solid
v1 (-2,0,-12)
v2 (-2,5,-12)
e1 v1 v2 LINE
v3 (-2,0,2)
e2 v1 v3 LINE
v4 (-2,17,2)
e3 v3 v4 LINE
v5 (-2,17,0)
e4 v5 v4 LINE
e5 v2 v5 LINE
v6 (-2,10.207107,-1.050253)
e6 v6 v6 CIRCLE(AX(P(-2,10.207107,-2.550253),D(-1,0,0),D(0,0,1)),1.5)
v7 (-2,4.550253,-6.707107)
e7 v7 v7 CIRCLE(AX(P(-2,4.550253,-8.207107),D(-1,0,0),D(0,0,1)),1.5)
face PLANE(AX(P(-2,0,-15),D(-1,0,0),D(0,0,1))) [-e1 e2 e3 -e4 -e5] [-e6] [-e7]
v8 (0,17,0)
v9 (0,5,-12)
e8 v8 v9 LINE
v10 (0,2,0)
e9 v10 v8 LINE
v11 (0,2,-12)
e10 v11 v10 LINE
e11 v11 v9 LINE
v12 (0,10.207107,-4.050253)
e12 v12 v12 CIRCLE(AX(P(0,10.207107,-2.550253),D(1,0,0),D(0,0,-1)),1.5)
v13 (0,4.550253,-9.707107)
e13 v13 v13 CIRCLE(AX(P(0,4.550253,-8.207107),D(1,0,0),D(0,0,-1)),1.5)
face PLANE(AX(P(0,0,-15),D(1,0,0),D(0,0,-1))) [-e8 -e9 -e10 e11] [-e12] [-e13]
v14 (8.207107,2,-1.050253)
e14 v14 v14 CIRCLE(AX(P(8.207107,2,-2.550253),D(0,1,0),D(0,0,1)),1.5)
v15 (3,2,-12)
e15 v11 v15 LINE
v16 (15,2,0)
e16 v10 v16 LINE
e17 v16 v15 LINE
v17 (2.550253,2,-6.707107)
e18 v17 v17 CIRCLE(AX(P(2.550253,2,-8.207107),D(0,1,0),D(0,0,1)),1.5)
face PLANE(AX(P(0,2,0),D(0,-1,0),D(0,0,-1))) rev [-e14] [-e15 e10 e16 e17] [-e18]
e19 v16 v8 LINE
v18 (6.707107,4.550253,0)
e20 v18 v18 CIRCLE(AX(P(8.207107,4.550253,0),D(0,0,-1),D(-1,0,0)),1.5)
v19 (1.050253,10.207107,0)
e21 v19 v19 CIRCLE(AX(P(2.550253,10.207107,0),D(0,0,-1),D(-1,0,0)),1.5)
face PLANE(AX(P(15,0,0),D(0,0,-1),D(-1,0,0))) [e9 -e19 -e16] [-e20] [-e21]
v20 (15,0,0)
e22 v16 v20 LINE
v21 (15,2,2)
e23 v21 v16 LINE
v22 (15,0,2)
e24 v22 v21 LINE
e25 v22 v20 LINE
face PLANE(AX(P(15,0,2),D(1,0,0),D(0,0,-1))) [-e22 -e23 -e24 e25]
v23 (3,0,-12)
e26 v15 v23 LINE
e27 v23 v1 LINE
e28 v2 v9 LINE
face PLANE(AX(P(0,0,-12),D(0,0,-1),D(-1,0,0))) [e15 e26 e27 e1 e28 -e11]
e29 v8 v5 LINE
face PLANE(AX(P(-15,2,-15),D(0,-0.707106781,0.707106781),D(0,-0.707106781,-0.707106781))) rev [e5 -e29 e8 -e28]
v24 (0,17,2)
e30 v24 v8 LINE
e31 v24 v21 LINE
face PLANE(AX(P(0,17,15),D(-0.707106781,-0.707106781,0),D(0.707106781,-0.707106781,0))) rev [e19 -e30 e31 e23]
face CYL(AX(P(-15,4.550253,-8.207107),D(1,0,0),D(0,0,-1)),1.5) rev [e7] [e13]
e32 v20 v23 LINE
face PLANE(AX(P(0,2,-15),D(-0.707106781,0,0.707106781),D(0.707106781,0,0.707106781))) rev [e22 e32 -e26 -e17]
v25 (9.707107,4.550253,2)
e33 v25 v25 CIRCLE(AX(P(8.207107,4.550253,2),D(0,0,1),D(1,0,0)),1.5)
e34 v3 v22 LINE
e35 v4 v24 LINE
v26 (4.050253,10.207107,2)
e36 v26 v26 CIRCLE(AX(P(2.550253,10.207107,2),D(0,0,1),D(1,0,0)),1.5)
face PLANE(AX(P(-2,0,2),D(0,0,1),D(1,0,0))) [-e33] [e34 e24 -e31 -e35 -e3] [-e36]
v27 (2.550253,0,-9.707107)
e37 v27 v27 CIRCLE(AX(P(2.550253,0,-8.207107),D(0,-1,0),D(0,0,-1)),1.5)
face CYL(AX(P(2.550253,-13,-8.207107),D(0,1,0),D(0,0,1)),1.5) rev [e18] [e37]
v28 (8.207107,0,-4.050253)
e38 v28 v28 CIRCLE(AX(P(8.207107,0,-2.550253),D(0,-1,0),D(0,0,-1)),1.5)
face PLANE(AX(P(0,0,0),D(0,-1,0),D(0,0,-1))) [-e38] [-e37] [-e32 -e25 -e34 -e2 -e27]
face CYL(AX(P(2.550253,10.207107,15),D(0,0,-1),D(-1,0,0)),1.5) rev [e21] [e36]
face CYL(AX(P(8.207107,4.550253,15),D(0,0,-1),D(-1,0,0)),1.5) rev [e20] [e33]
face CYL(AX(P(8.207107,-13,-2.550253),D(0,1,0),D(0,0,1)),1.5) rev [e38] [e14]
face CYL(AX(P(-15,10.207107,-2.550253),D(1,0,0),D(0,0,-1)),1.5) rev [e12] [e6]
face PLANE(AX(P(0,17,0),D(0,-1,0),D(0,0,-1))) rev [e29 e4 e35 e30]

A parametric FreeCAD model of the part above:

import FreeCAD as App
import Part
import Sketcher

V = App.Vector


def add_polygon(sketch, points):
    """Adds a closed chain of lines whose ends are joined by coincident constraints."""
    first, n = sketch.GeometryCount, len(points)
    for a, b in zip(points, points[1:] + points[:1]):
        sketch.addGeometry(Part.LineSegment(App.Vector(*a, 0), App.Vector(*b, 0)), False)
    for i in range(n):
        sketch.addConstraint(Sketcher.Constraint("Coincident", first + i, 2, first + (i + 1) % n, 1))

doc = App.newDocument("Part")
body = doc.addObject("PartDesign::Body", "Body")

# Sketch on XZ plane
sketch1 = doc.addObject("Sketcher::SketchObject", "Sketch")
body.addObject(sketch1)
sketch1.AttachmentSupport = (doc.XZ_Plane, [""])
sketch1.MapMode = "FlatFace"
add_polygon(sketch1, [(15, 0), (0, -15), (0, 0)])  # lines 0-2
sketch1.addConstraint([
    Sketcher.Constraint("Vertical", 1),
    Sketcher.Constraint("Horizontal", 2),
    Sketcher.Constraint("Coincident", 1, 2, -1, 1),
    Sketcher.Constraint("Equal", 2, 1),
    Sketcher.Constraint("DistanceX", 2, 1, 2, 2, 15.0),
])
pad1 = doc.addObject("PartDesign::Pad", "Pad")
body.addObject(pad1)
pad1.Profile = sketch1
pad1.Length = 2
pad1.Reversed = True

# Sketch on XZ plane
sketch2 = doc.addObject("Sketcher::SketchObject", "Sketch001")
body.addObject(sketch2)
sketch2.AttachmentSupport = (doc.XZ_Plane, [""])
sketch2.MapMode = "FlatFace"
sketch2.AttachmentOffset = App.Placement(V(0, 0, -2), App.Rotation())
add_polygon(sketch2, [(-2, 2), (15, 2), (15, 0), (0, 0), (0, -15), (-2, -15)])  # lines 0-5
sketch2.addConstraint([
    Sketcher.Constraint("Horizontal", 0),
    Sketcher.Constraint("Vertical", 1),
    Sketcher.Constraint("Horizontal", 2),
    Sketcher.Constraint("Vertical", 3),
    Sketcher.Constraint("Horizontal", 4),
    Sketcher.Constraint("Vertical", 5),
    Sketcher.Constraint("Coincident", 2, 2, -1, 1),
    Sketcher.Constraint("Equal", 4, 1),
    Sketcher.Constraint("Equal", 2, 3),
    Sketcher.Constraint("DistanceX", 0, 1, 0, 2, 17.0),
    Sketcher.Constraint("DistanceX", 2, 2, 2, 1, 15.0),
])
pad2 = doc.addObject("PartDesign::Pad", "Pad001")
body.addObject(pad2)
pad2.Profile = sketch2
pad2.Type = "TwoLengths"
pad2.Length = 15
pad2.Length2 = 2
pad2.Reversed = True

# Sketch on YZ plane
sketch3 = doc.addObject("Sketcher::SketchObject", "Sketch002")
body.addObject(sketch3)
sketch3.AttachmentSupport = (doc.YZ_Plane, [""])
sketch3.MapMode = "FlatFace"
add_polygon(sketch3, [(17, 0), (2, -15), (17, -15)])  # lines 0-2
sketch3.addConstraint([
    Sketcher.Constraint("Horizontal", 1),
    Sketcher.Constraint("Vertical", 2),
    Sketcher.Constraint("PointOnObject", 2, 2, -1),
    Sketcher.Constraint("Equal", 1, 2),
    Sketcher.Constraint("DistanceX", 1, 1, 1, 2, 15.0),
    Sketcher.Constraint("DistanceX", -1, 1, 0, 2, 2.0),
])
pocket1 = doc.addObject("PartDesign::Pocket", "Pocket")
body.addObject(pocket1)
pocket1.Profile = sketch3
pocket1.Length = 15

# Sketch on XY plane
sketch4 = doc.addObject("Sketcher::SketchObject", "Sketch003")
body.addObject(sketch4)
sketch4.AttachmentSupport = (doc.XY_Plane, [""])
sketch4.MapMode = "FlatFace"
add_polygon(sketch4, [(15, 2), (0, 17), (15, 17)])  # lines 0-2
sketch4.addConstraint([
    Sketcher.Constraint("Horizontal", 1),
    Sketcher.Constraint("Vertical", 2),
    Sketcher.Constraint("PointOnObject", 0, 2, -2),
    Sketcher.Constraint("Equal", 1, 2),
    Sketcher.Constraint("DistanceX", 1, 1, 1, 2, 15.0),
    Sketcher.Constraint("DistanceY", -1, 1, 0, 2, 17.0),
])
pocket2 = doc.addObject("PartDesign::Pocket", "Pocket001")
body.addObject(pocket2)
pocket2.Profile = sketch4
pocket2.Length = 15
pocket2.Reversed = True

# Sketch on YZ plane
sketch5 = doc.addObject("Sketcher::SketchObject", "Sketch004")
body.addObject(sketch5)
sketch5.AttachmentSupport = (doc.YZ_Plane, [""])
sketch5.MapMode = "FlatFace"
sketch5.addGeometry([
    Part.Circle(V(10.207107, -2.550253, 0), V(0, 0, 1), 1.5),
    Part.Circle(V(4.550253, -8.207107, 0), V(0, 0, 1), 1.5),
], False)
sketch5.addConstraint([
    Sketcher.Constraint("Equal", 0, 1),
    Sketcher.Constraint("Diameter", 0, 3.0),
    Sketcher.Constraint("DistanceX", -1, 1, 0, 3, 10.207107),
    Sketcher.Constraint("DistanceY", 0, 3, -1, 1, 2.550253),
    Sketcher.Constraint("DistanceX", -1, 1, 1, 3, 4.550253),
    Sketcher.Constraint("DistanceY", 1, 3, -1, 1, 8.207107),
])
pocket3 = doc.addObject("PartDesign::Pocket", "Pocket002")
body.addObject(pocket3)
pocket3.Profile = sketch5
pocket3.Length = 15

# Sketch on XY plane
sketch6 = doc.addObject("Sketcher::SketchObject", "Sketch005")
body.addObject(sketch6)
sketch6.AttachmentSupport = (doc.XY_Plane, [""])
sketch6.MapMode = "FlatFace"
sketch6.addGeometry([
    Part.Circle(V(2.550253, 10.207107, 0), V(0, 0, 1), 1.5),
    Part.Circle(V(8.207107, 4.550253, 0), V(0, 0, 1), 1.5),
], False)
sketch6.addConstraint([
    Sketcher.Constraint("Equal", 0, 1),
    Sketcher.Constraint("Diameter", 0, 3.0),
    Sketcher.Constraint("DistanceX", -1, 1, 0, 3, 2.550253),
    Sketcher.Constraint("DistanceY", -1, 1, 0, 3, 10.207107),
    Sketcher.Constraint("DistanceX", -1, 1, 1, 3, 8.207107),
    Sketcher.Constraint("DistanceY", -1, 1, 1, 3, 4.550253),
])
pocket4 = doc.addObject("PartDesign::Pocket", "Pocket003")
body.addObject(pocket4)
pocket4.Profile = sketch6
pocket4.Length = 15
pocket4.Reversed = True

# Sketch on XZ plane
sketch7 = doc.addObject("Sketcher::SketchObject", "Sketch006")
body.addObject(sketch7)
sketch7.AttachmentSupport = (doc.XZ_Plane, [""])
sketch7.MapMode = "FlatFace"
sketch7.AttachmentOffset = App.Placement(V(0, 0, -2), App.Rotation())
sketch7.addGeometry([
    Part.Circle(V(2.550253, -8.207107, 0), V(0, 0, 1), 1.5),
    Part.Circle(V(8.207107, -2.550253, 0), V(0, 0, 1), 1.5),
], False)
sketch7.addConstraint([
    Sketcher.Constraint("Equal", 0, 1),
    Sketcher.Constraint("Diameter", 0, 3.0),
    Sketcher.Constraint("DistanceX", -1, 1, 0, 3, 2.550253),
    Sketcher.Constraint("DistanceY", 0, 3, -1, 1, 8.207107),
    Sketcher.Constraint("DistanceX", -1, 1, 1, 3, 8.207107),
    Sketcher.Constraint("DistanceY", 1, 3, -1, 1, 2.550253),
])
pocket5 = doc.addObject("PartDesign::Pocket", "Pocket004")
body.addObject(pocket5)
pocket5.Profile = sketch7
pocket5.Length = 15
pocket5.Reversed = True

# Sketch on XY plane
sketch8 = doc.addObject("Sketcher::SketchObject", "Sketch007")
body.addObject(sketch8)
sketch8.AttachmentSupport = (doc.XY_Plane, [""])
sketch8.MapMode = "FlatFace"
sketch8.AttachmentOffset = App.Placement(V(0, 0, -15), App.Rotation())
add_polygon(sketch8, [(15, 17), (15, 0), (-2, 0), (-2, 17)])  # lines 0-3
sketch8.addConstraint([
    Sketcher.Constraint("Vertical", 0),
    Sketcher.Constraint("Horizontal", 1),
    Sketcher.Constraint("Vertical", 2),
    Sketcher.Constraint("Horizontal", 3),
    Sketcher.Constraint("PointOnObject", 0, 2, -1),
    Sketcher.Constraint("Equal", 3, 0),
    Sketcher.Constraint("DistanceX", 1, 2, 1, 1, 17.0),
    Sketcher.Constraint("DistanceX", -1, 1, 0, 2, 15.0),
])
pocket6 = doc.addObject("PartDesign::Pocket", "Pocket005")
body.addObject(pocket6)
pocket6.Profile = sketch8
pocket6.Length = 3
pocket6.Reversed = True

doc.recompute()
